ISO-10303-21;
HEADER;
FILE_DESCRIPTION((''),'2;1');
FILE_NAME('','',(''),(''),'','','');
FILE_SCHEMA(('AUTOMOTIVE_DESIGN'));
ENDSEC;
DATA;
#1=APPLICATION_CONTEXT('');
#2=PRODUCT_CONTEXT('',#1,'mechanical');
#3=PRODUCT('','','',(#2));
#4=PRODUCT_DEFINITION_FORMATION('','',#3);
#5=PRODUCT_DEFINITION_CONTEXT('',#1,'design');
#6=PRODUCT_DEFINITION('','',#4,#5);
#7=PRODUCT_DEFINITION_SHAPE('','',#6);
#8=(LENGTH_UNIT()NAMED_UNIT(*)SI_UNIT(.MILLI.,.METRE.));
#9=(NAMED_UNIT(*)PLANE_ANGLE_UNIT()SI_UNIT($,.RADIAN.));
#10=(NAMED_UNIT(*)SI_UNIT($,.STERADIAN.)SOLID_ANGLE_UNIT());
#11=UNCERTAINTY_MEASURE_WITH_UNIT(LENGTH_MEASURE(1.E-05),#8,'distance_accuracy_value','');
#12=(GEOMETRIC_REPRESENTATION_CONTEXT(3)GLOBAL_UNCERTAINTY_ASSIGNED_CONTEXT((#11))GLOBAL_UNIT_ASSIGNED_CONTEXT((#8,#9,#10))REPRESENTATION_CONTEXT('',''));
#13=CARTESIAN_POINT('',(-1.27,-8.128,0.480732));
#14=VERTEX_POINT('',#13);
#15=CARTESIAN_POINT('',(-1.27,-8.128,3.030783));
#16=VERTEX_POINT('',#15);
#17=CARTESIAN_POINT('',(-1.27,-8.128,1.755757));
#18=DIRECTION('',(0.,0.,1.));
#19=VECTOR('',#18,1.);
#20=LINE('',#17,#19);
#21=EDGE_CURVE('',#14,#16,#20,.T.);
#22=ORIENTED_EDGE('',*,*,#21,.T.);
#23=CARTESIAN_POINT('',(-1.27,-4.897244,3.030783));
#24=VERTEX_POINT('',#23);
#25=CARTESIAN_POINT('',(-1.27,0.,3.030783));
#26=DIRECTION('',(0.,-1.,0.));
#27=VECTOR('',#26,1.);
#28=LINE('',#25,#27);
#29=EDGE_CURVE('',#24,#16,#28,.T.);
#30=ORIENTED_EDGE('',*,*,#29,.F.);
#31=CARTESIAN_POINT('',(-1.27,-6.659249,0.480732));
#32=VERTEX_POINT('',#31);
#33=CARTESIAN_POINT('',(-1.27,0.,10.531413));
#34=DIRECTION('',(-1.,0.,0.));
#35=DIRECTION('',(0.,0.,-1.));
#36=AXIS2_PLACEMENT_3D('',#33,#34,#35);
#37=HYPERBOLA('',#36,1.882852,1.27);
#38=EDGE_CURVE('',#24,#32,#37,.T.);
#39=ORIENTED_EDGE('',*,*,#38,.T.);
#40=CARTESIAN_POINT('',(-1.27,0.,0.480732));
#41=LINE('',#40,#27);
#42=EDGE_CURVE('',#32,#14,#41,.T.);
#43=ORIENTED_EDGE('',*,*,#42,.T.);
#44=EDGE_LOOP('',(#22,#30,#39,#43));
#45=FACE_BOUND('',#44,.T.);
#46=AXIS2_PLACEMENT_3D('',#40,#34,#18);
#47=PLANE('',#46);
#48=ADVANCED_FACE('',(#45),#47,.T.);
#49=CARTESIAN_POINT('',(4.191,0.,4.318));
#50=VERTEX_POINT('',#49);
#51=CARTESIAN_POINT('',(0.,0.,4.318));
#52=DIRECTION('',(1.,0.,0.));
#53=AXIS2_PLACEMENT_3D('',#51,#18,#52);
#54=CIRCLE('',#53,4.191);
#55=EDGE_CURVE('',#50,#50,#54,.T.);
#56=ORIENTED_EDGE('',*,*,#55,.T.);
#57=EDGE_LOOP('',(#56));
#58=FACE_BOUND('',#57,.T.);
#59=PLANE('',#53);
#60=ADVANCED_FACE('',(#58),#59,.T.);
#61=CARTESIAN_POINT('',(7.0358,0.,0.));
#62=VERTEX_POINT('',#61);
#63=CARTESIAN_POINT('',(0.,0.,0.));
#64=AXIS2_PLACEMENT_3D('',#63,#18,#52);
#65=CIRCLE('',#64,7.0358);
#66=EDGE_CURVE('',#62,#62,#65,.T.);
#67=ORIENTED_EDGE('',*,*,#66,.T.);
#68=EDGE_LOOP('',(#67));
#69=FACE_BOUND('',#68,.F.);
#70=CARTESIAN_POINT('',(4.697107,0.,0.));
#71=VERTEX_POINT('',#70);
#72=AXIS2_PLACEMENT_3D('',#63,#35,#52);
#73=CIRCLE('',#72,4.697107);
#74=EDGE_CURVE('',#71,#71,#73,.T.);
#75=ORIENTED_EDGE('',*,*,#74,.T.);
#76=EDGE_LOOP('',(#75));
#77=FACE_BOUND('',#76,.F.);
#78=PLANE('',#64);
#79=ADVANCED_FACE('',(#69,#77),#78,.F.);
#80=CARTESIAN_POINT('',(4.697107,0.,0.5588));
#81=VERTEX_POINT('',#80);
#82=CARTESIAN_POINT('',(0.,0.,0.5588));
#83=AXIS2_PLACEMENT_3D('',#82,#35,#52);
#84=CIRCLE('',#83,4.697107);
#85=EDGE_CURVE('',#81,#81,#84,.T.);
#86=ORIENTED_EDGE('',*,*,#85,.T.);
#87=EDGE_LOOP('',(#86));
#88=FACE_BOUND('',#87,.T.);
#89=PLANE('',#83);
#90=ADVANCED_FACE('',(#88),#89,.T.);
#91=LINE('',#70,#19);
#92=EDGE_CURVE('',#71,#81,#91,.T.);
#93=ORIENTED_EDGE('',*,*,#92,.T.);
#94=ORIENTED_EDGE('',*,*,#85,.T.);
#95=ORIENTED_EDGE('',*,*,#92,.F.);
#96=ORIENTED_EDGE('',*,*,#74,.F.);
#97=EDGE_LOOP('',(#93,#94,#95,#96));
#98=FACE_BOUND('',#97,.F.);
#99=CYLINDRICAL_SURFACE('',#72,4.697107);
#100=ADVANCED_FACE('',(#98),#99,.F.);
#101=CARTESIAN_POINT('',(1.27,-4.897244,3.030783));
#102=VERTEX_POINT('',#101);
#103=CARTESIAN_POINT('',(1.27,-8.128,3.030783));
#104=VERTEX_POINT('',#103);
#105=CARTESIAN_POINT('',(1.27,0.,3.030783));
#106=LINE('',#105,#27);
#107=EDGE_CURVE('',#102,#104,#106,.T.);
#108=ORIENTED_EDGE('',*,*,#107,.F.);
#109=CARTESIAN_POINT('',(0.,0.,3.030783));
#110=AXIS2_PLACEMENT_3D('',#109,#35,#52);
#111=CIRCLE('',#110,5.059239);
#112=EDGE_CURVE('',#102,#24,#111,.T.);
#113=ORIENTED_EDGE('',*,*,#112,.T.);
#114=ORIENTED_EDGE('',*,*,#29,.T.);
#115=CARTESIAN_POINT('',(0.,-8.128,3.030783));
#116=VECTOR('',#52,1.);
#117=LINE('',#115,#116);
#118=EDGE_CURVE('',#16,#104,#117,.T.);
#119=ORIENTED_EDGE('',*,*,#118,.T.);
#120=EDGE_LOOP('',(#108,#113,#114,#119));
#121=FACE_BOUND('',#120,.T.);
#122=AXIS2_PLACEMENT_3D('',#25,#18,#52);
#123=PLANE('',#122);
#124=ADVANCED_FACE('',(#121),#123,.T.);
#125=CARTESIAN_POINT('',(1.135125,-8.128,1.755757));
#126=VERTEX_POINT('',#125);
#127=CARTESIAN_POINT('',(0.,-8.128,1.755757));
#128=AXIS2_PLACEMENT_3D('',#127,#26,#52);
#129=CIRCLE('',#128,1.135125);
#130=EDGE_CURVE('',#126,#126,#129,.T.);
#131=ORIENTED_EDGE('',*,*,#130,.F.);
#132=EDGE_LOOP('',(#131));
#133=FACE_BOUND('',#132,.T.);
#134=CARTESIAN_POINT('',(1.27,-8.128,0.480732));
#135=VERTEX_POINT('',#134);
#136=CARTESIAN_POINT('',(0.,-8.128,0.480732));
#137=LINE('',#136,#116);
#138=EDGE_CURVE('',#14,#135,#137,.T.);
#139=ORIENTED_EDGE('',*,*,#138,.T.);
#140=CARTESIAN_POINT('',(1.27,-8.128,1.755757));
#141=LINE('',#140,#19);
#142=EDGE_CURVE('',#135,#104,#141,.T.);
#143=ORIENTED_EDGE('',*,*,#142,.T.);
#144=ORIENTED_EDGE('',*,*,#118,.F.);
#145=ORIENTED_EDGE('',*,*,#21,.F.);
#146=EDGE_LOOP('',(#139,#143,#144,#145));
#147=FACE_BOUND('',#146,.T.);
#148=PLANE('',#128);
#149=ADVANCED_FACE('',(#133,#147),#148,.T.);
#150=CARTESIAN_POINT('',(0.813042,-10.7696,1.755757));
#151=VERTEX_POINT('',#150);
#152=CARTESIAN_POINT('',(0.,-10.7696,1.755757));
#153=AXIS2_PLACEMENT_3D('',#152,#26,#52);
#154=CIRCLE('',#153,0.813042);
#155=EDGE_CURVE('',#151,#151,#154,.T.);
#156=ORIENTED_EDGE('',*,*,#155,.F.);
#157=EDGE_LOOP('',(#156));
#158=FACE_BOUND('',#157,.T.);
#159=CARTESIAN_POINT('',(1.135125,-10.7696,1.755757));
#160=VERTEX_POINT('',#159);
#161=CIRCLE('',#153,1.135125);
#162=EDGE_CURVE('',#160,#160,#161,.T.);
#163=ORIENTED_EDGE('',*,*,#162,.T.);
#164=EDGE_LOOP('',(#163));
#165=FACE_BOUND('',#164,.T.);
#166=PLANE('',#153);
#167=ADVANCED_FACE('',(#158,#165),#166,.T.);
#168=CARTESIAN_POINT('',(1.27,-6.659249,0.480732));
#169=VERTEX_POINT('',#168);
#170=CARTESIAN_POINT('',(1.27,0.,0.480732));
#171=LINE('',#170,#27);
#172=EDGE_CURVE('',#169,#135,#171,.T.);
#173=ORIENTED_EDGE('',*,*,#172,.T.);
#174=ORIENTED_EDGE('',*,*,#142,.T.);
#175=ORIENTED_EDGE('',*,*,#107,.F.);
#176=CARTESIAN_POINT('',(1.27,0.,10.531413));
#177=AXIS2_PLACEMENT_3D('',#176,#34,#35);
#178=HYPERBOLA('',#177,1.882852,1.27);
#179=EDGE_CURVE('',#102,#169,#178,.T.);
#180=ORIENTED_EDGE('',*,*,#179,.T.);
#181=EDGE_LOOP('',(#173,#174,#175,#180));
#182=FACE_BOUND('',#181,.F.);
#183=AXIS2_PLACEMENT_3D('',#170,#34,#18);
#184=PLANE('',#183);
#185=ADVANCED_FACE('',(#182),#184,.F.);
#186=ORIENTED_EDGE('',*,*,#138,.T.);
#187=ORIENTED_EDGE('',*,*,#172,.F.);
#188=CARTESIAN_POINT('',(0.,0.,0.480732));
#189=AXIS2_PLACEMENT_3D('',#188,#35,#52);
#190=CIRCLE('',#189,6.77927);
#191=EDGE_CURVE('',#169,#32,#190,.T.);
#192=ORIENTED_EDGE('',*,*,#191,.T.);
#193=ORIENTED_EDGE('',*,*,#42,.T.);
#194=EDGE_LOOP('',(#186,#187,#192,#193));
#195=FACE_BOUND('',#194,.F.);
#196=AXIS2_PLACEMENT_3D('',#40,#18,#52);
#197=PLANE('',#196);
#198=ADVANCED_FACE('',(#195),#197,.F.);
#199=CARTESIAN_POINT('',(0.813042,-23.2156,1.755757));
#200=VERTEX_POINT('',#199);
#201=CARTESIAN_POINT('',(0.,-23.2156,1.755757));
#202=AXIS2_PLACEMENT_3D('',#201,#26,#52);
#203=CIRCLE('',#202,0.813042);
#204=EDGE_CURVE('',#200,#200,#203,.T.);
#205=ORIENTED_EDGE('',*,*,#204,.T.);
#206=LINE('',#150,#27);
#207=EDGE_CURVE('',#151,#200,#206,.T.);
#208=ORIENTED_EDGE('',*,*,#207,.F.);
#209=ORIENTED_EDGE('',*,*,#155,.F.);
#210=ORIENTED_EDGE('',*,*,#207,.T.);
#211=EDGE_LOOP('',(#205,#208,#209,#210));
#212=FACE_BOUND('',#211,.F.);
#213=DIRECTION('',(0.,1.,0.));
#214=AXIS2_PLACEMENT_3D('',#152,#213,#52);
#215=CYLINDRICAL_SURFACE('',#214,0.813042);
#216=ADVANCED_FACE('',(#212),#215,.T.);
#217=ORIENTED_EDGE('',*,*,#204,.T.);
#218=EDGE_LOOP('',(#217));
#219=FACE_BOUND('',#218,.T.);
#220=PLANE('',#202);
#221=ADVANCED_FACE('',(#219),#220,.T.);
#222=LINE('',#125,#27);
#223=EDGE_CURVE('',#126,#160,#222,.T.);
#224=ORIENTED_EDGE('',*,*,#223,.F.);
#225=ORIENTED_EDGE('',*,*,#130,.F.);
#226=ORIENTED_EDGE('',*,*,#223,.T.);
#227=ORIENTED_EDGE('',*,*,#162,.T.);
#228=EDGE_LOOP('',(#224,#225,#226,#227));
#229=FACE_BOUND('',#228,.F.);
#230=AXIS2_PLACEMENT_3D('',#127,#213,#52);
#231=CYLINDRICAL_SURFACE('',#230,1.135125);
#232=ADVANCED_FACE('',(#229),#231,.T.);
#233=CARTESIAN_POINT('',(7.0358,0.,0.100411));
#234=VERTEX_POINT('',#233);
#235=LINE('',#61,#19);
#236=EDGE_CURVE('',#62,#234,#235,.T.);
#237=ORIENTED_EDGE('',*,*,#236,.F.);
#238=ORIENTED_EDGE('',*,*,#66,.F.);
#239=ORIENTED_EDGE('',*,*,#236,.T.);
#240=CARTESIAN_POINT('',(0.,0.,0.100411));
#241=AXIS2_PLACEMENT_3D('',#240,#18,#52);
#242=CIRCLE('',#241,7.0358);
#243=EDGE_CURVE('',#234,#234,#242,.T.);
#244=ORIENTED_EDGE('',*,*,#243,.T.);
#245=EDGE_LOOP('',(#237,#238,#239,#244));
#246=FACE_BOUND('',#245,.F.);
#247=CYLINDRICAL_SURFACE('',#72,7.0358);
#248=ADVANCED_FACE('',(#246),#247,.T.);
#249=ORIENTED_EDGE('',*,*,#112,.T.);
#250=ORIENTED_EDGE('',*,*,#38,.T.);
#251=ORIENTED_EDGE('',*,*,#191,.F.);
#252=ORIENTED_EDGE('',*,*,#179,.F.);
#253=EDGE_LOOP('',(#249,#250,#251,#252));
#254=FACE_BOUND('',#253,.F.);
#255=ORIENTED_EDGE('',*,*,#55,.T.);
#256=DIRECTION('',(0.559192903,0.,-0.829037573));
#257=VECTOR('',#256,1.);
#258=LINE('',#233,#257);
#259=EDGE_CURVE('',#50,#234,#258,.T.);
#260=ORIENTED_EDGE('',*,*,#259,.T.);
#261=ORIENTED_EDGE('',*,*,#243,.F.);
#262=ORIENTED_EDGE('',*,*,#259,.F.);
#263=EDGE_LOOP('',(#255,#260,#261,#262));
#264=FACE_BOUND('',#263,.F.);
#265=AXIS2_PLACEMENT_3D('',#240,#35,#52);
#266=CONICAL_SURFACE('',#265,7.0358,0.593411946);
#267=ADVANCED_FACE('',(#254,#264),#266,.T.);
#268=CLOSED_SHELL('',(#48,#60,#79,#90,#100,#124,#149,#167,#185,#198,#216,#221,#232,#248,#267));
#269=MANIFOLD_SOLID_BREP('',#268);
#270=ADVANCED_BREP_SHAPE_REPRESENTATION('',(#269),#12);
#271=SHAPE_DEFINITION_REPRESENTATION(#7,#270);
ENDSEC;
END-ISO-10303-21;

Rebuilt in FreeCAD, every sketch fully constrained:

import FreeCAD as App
import Part
import Sketcher
from FreeCAD import Vector
Q = App.Units.Quantity


def edges_at(feature, points):
    """Names of the edges that pass closest to the given points."""
    edges = feature.Shape.Edges
    near = lambda p: min(range(len(edges)), key=lambda i: edges[i].distToShape(Part.Vertex(*p))[0])
    return sorted({f"Edge{near(p) + 1}" for p in points})


def add_polygon(sketch, points):
    """Adds a closed chain of lines whose ends are joined by coincident constraints."""
    first, n = sketch.GeometryCount, len(points)
    for a, b in zip(points, points[1:] + points[:1]):
        sketch.addGeometry(Part.LineSegment(App.Vector(*a, 0), App.Vector(*b, 0)), False)
    for i in range(n):
        sketch.addConstraint(Sketcher.Constraint("Coincident", first + i, 2, first + (i + 1) % n, 1))

doc = App.newDocument("Part")
params = doc.addObject("Spreadsheet::Sheet", "Params")
for row, (alias, value) in enumerate([
    ("sketch1_diameter", "0.554 in"),
    ("pad1_length", "0.17 in"),
    ("chamfer_size", "0.112 in"),
    ("chamfer_size2", "4.217589 mm"),
    ("sketch2_width", "0.1 in"),
    ("pad2_length", "0.32 in"),
    ("pad3_length", "0.104 in"),
    ("pocket1_length", "0.022 in"),
    ("pad4_length", "0.49 in"),
], start=1):
    params.set(f"A{row}", alias)
    params.set(f"B{row}", "=" + value)
    params.setAlias(f"B{row}", alias)

body = doc.addObject("PartDesign::Body", "Body")

sketch1 = body.newObject("Sketcher::SketchObject", "Sketch")
sketch1.AttachmentSupport = (doc.getObject("XY_Plane"), [""])
sketch1.MapMode = "FlatFace"
sketch1.addGeometry(Part.Circle(Vector(0, 0, 0), Vector(0, 0, 1), 7.0358), False)
sketch1.addConstraint([
    Sketcher.Constraint("Coincident", 0, 3, -1, 1),
    Sketcher.Constraint("Diameter", 0, Q("0.554 in")),
])
sketch1.setExpression("Constraints[1]", "Params.sketch1_diameter")
pad1 = body.newObject("PartDesign::Pad", "Pad")
pad1.Profile = sketch1
pad1.setExpression("Length", "Params.pad1_length")
doc.recompute()

chamfer = body.newObject("PartDesign::Chamfer", "Chamfer")
chamfer.Base = (pad1, edges_at(pad1, [(-7.036, 0, 4.318)]))
chamfer.ChamferType = "Two distances"
chamfer.setExpression("Size", "Params.chamfer_size")
chamfer.setExpression("Size2", "Params.chamfer_size2")
chamfer.FlipDirection = True

sketch2 = body.newObject("Sketcher::SketchObject", "Sketch001")
sketch2.AttachmentSupport = (doc.getObject("XZ_Plane"), [""])
sketch2.MapMode = "FlatFace"
add_polygon(sketch2, [(-1.27, 3.030783), (-1.27, 0.480732), (1.27, 0.480732), (1.27, 3.030783)])
sketch2.addConstraint([
    Sketcher.Constraint("Vertical", 0),
    Sketcher.Constraint("Horizontal", 1),
    Sketcher.Constraint("Vertical", 2),
    Sketcher.Constraint("Horizontal", 3),
    Sketcher.Constraint("DistanceX", 1, 1, 1, 2, Q("0.1 in")),
    Sketcher.Constraint("DistanceX", 0, 2, -1, 1, Q("0.05 in")),
    Sketcher.Constraint("DistanceY", 0, 2, 0, 1, 2.55005),
    Sketcher.Constraint("DistanceY", -1, 1, 0, 2, 0.480732),
])
sketch2.setExpression("Constraints[8]", "Params.sketch2_width")
pad2 = body.newObject("PartDesign::Pad", "Pad001")
pad2.Profile = sketch2
pad2.setExpression("Length", "Params.pad2_length")

sketch3 = body.newObject("Sketcher::SketchObject", "Sketch002")
sketch3.AttachmentSupport = (doc.getObject("XZ_Plane"), [""])
sketch3.MapMode = "FlatFace"
sketch3.AttachmentOffset = App.Placement(Vector(0, 0, 0.32 * 25.4), App.Rotation())
sketch3.addGeometry(Part.Circle(Vector(0, 1.755757, 0), Vector(0, 0, 1), 1.135125), False)
sketch3.addConstraint([
    Sketcher.Constraint("PointOnObject", 0, 3, -2),
    Sketcher.Constraint("Diameter", 0, 2.27025),
    Sketcher.Constraint("DistanceY", -1, 1, 0, 3, 1.755757),
])
pad3 = body.newObject("PartDesign::Pad", "Pad002")
pad3.Profile = sketch3
pad3.setExpression("Length", "Params.pad3_length")

sketch4 = body.newObject("Sketcher::SketchObject", "Sketch003")
sketch4.AttachmentSupport = (doc.getObject("XY_Plane"), [""])
sketch4.MapMode = "FlatFace"
sketch4.addGeometry(Part.Circle(Vector(0, 0, 0), Vector(0, 0, 1), 4.697107), False)
sketch4.addConstraint([
    Sketcher.Constraint("Coincident", 0, 3, -1, 1),
    Sketcher.Constraint("Diameter", 0, 9.394215),
])
pocket1 = body.newObject("PartDesign::Pocket", "Pocket")
pocket1.Profile = sketch4
pocket1.setExpression("Length", "Params.pocket1_length")
pocket1.Reversed = True

sketch5 = body.newObject("Sketcher::SketchObject", "Sketch004")
sketch5.AttachmentSupport = (doc.getObject("XZ_Plane"), [""])
sketch5.MapMode = "FlatFace"
sketch5.AttachmentOffset = App.Placement(Vector(0, 0, 0.424 * 25.4), App.Rotation())
sketch5.addGeometry(Part.Circle(Vector(0, 1.755757, 0), Vector(0, 0, 1), 0.813042), False)
sketch5.addConstraint([
    Sketcher.Constraint("PointOnObject", 0, 3, -2),
    Sketcher.Constraint("Diameter", 0, 1.626084),
    Sketcher.Constraint("DistanceY", -1, 1, 0, 3, 1.755757),
])
pad4 = body.newObject("PartDesign::Pad", "Pad003")
pad4.Profile = sketch5
pad4.setExpression("Length", "Params.pad4_length")

doc.recompute()
